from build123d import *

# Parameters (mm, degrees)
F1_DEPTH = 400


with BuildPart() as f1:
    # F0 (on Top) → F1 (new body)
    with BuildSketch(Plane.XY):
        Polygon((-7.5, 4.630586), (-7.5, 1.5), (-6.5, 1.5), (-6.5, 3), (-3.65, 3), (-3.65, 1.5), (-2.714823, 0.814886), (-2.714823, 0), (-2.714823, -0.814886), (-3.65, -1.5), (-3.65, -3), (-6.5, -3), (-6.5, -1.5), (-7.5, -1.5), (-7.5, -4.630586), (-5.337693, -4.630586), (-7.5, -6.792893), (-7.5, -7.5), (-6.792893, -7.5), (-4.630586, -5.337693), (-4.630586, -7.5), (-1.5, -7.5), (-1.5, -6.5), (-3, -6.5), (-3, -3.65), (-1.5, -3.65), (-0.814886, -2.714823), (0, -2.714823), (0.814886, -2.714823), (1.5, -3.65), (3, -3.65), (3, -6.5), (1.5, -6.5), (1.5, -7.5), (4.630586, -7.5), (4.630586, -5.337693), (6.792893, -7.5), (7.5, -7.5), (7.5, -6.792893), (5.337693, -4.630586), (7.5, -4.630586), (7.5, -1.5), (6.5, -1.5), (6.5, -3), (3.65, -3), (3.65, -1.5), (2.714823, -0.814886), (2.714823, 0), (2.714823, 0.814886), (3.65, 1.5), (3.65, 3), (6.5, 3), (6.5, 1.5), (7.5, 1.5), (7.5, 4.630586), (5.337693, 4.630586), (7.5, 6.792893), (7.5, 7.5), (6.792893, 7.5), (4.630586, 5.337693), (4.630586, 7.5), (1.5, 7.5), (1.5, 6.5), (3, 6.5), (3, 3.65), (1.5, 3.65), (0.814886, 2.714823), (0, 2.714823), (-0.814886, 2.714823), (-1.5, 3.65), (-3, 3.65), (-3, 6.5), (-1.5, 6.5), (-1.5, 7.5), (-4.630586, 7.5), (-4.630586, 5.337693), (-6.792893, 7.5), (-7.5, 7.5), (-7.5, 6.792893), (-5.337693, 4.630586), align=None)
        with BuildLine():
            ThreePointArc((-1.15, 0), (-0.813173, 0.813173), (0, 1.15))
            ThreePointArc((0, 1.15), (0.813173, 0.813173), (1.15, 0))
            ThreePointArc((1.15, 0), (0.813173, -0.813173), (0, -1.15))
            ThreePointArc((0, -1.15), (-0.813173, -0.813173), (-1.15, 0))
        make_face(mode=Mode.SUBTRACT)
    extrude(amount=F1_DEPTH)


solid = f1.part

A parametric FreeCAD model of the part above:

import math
import FreeCAD as App
import Part
import Sketcher

V = App.Vector
Q = App.Units.Quantity

doc = App.newDocument("Part")
body = doc.addObject("PartDesign::Body", "Body")

sketch1 = body.newObject("Sketcher::SketchObject", "Sketch")
sketch1.AttachmentSupport = (doc.getObject("XY_Plane"), [""])
sketch1.MapMode = "FlatFace"
sketch1.addGeometry([
    Part.LineSegment(V(-7.5, 4.6, 0), V(-7.5, 1.5, 0)),
    Part.LineSegment(V(-7.5, 1.5, 0), V(-6.5, 1.5, 0)),
    Part.LineSegment(V(-6.5, 1.5, 0), V(-6.5, 3, 0)),
    Part.LineSegment(V(-6.5, 3, 0), V(-3.6, 3, 0)),
    Part.LineSegment(V(-3.6, 3, 0), V(-3.6, 1.5, 0)),
    Part.LineSegment(V(-3.6, 1.5, 0), V(-2.7, 0.8, 0)),
    Part.LineSegment(V(-2.7, 0.8, 0), V(-2.7, -0.8, 0)),
    Part.LineSegment(V(-2.7, -0.8, 0), V(-3.6, -1.5, 0)),
    Part.LineSegment(V(-3.6, -1.5, 0), V(-3.6, -3, 0)),
    Part.LineSegment(V(-3.6, -3, 0), V(-6.5, -3, 0)),
    Part.LineSegment(V(-6.5, -3, 0), V(-6.5, -1.5, 0)),
    Part.LineSegment(V(-6.5, -1.5, 0), V(-7.5, -1.5, 0)),
    Part.LineSegment(V(-7.5, -1.5, 0), V(-7.5, -4.6, 0)),
    Part.LineSegment(V(-7.5, -4.6, 0), V(-5.3, -4.6, 0)),
    Part.LineSegment(V(-5.3, -4.6, 0), V(-7.5, -6.8, 0)),
    Part.LineSegment(V(-7.5, -6.8, 0), V(-7.5, -7.5, 0)),
    Part.LineSegment(V(-7.5, -7.5, 0), V(-6.8, -7.5, 0)),
    Part.LineSegment(V(-6.8, -7.5, 0), V(-4.6, -5.3, 0)),
    Part.LineSegment(V(-4.6, -5.3, 0), V(-4.6, -7.5, 0)),
    Part.LineSegment(V(-4.6, -7.5, 0), V(-1.5, -7.5, 0)),
    Part.LineSegment(V(-1.5, -7.5, 0), V(-1.5, -6.5, 0)),
    Part.LineSegment(V(-1.5, -6.5, 0), V(-3, -6.5, 0)),
    Part.LineSegment(V(-3, -6.5, 0), V(-3, -3.6, 0)),
    Part.LineSegment(V(-3, -3.6, 0), V(-1.5, -3.6, 0)),
    Part.LineSegment(V(-1.5, -3.6, 0), V(-0.8, -2.7, 0)),
    Part.LineSegment(V(-0.8, -2.7, 0), V(0.8, -2.7, 0)),
    Part.LineSegment(V(0.8, -2.7, 0), V(1.5, -3.6, 0)),
    Part.LineSegment(V(1.5, -3.6, 0), V(3, -3.6, 0)),
    Part.LineSegment(V(3, -3.6, 0), V(3, -6.5, 0)),
    Part.LineSegment(V(3, -6.5, 0), V(1.5, -6.5, 0)),
    Part.LineSegment(V(1.5, -6.5, 0), V(1.5, -7.5, 0)),
    Part.LineSegment(V(1.5, -7.5, 0), V(4.6, -7.5, 0)),
    Part.LineSegment(V(4.6, -7.5, 0), V(4.6, -5.3, 0)),
    Part.LineSegment(V(4.6, -5.3, 0), V(6.8, -7.5, 0)),
    Part.LineSegment(V(6.8, -7.5, 0), V(7.5, -7.5, 0)),
    Part.LineSegment(V(7.5, -7.5, 0), V(7.5, -6.8, 0)),
    Part.LineSegment(V(7.5, -6.8, 0), V(5.3, -4.6, 0)),
    Part.LineSegment(V(5.3, -4.6, 0), V(7.5, -4.6, 0)),
    Part.LineSegment(V(7.5, -4.6, 0), V(7.5, -1.5, 0)),
    Part.LineSegment(V(7.5, -1.5, 0), V(6.5, -1.5, 0)),
    Part.LineSegment(V(6.5, -1.5, 0), V(6.5, -3, 0)),
    Part.LineSegment(V(6.5, -3, 0), V(3.6, -3, 0)),
    Part.LineSegment(V(3.6, -3, 0), V(3.6, -1.5, 0)),
    Part.LineSegment(V(3.6, -1.5, 0), V(2.7, -0.8, 0)),
    Part.LineSegment(V(2.7, -0.8, 0), V(2.7, 0.8, 0)),
    Part.LineSegment(V(2.7, 0.8, 0), V(3.6, 1.5, 0)),
    Part.LineSegment(V(3.6, 1.5, 0), V(3.6, 3, 0)),
    Part.LineSegment(V(3.6, 3, 0), V(6.5, 3, 0)),
    Part.LineSegment(V(6.5, 3, 0), V(6.5, 1.5, 0)),
    Part.LineSegment(V(6.5, 1.5, 0), V(7.5, 1.5, 0)),
    Part.LineSegment(V(7.5, 1.5, 0), V(7.5, 4.6, 0)),
    Part.LineSegment(V(7.5, 4.6, 0), V(5.3, 4.6, 0)),
    Part.LineSegment(V(5.3, 4.6, 0), V(7.5, 6.8, 0)),
    Part.LineSegment(V(7.5, 6.8, 0), V(7.5, 7.5, 0)),
    Part.LineSegment(V(7.5, 7.5, 0), V(6.8, 7.5, 0)),
    Part.LineSegment(V(6.8, 7.5, 0), V(4.6, 5.3, 0)),
    Part.LineSegment(V(4.6, 5.3, 0), V(4.6, 7.5, 0)),
    Part.LineSegment(V(4.6, 7.5, 0), V(1.5, 7.5, 0)),
    Part.LineSegment(V(1.5, 7.5, 0), V(1.5, 6.5, 0)),
    Part.LineSegment(V(1.5, 6.5, 0), V(3, 6.5, 0)),
    Part.LineSegment(V(3, 6.5, 0), V(3, 3.6, 0)),
    Part.LineSegment(V(3, 3.6, 0), V(1.5, 3.6, 0)),
    Part.LineSegment(V(1.5, 3.6, 0), V(0.8, 2.7, 0)),
    Part.LineSegment(V(0.8, 2.7, 0), V(-0.8, 2.7, 0)),
    Part.LineSegment(V(-0.8, 2.7, 0), V(-1.5, 3.6, 0)),
    Part.LineSegment(V(-1.5, 3.6, 0), V(-3, 3.6, 0)),
    Part.LineSegment(V(-3, 3.6, 0), V(-3, 6.5, 0)),
    Part.LineSegment(V(-3, 6.5, 0), V(-1.5, 6.5, 0)),
    Part.LineSegment(V(-1.5, 6.5, 0), V(-1.5, 7.5, 0)),
    Part.LineSegment(V(-1.5, 7.5, 0), V(-4.6, 7.5, 0)),
    Part.LineSegment(V(-4.6, 7.5, 0), V(-4.6, 5.3, 0)),
    Part.LineSegment(V(-4.6, 5.3, 0), V(-6.8, 7.5, 0)),
    Part.LineSegment(V(-6.8, 7.5, 0), V(-7.5, 7.5, 0)),
    Part.LineSegment(V(-7.5, 7.5, 0), V(-7.5, 6.8, 0)),
    Part.LineSegment(V(-7.5, 6.8, 0), V(-5.3, 4.6, 0)),
    Part.LineSegment(V(-5.3, 4.6, 0), V(-7.5, 4.6, 0)),
    Part.ArcOfCircle(Part.Circle(V(0, 0, 0), V(0, 0, 1), 1.1), math.radians(180), math.radians(270)),
    Part.ArcOfCircle(Part.Circle(V(0, 0, 0), V(0, 0, 1), 1.1), math.radians(90), math.radians(180)),
    Part.ArcOfCircle(Part.Circle(V(0, 0, 0), V(0, 0, 1), 1.1), math.radians(0), math.radians(90)),
    Part.ArcOfCircle(Part.Circle(V(0, 0, 0), V(0, 0, 1), 1.1), math.radians(-90), math.radians(0)),
], False)
sketch1.addConstraint([
    Sketcher.Constraint("Coincident", 0, 2, 1, 1),
    Sketcher.Constraint("Coincident", 1, 2, 2, 1),
    Sketcher.Constraint("Coincident", 2, 2, 3, 1),
    Sketcher.Constraint("Coincident", 3, 2, 4, 1),
    Sketcher.Constraint("Coincident", 4, 2, 5, 1),
    Sketcher.Constraint("Coincident", 5, 2, 6, 1),
    Sketcher.Constraint("Coincident", 6, 2, 7, 1),
    Sketcher.Constraint("Coincident", 7, 2, 8, 1),
    Sketcher.Constraint("Coincident", 8, 2, 9, 1),
    Sketcher.Constraint("Coincident", 9, 2, 10, 1),
    Sketcher.Constraint("Coincident", 10, 2, 11, 1),
    Sketcher.Constraint("Coincident", 11, 2, 12, 1),
    Sketcher.Constraint("Coincident", 12, 2, 13, 1),
    Sketcher.Constraint("Coincident", 13, 2, 14, 1),
    Sketcher.Constraint("Coincident", 14, 2, 15, 1),
    Sketcher.Constraint("Coincident", 15, 2, 16, 1),
    Sketcher.Constraint("Coincident", 16, 2, 17, 1),
    Sketcher.Constraint("Coincident", 17, 2, 18, 1),
    Sketcher.Constraint("Coincident", 18, 2, 19, 1),
    Sketcher.Constraint("Coincident", 19, 2, 20, 1),
    Sketcher.Constraint("Coincident", 20, 2, 21, 1),
    Sketcher.Constraint("Coincident", 21, 2, 22, 1),
    Sketcher.Constraint("Coincident", 22, 2, 23, 1),
    Sketcher.Constraint("Coincident", 23, 2, 24, 1),
    Sketcher.Constraint("Coincident", 24, 2, 25, 1),
    Sketcher.Constraint("Coincident", 25, 2, 26, 1),
    Sketcher.Constraint("Coincident", 26, 2, 27, 1),
    Sketcher.Constraint("Coincident", 27, 2, 28, 1),
    Sketcher.Constraint("Coincident", 28, 2, 29, 1),
    Sketcher.Constraint("Coincident", 29, 2, 30, 1),
    Sketcher.Constraint("Coincident", 30, 2, 31, 1),
    Sketcher.Constraint("Coincident", 31, 2, 32, 1),
    Sketcher.Constraint("Coincident", 32, 2, 33, 1),
    Sketcher.Constraint("Coincident", 33, 2, 34, 1),
    Sketcher.Constraint("Coincident", 34, 2, 35, 1),
    Sketcher.Constraint("Coincident", 35, 2, 36, 1),
    Sketcher.Constraint("Coincident", 36, 2, 37, 1),
    Sketcher.Constraint("Coincident", 37, 2, 38, 1),
    Sketcher.Constraint("Coincident", 38, 2, 39, 1),
    Sketcher.Constraint("Coincident", 39, 2, 40, 1),
    Sketcher.Constraint("Coincident", 40, 2, 41, 1),
    Sketcher.Constraint("Coincident", 41, 2, 42, 1),
    Sketcher.Constraint("Coincident", 42, 2, 43, 1),
    Sketcher.Constraint("Coincident", 43, 2, 44, 1),
    Sketcher.Constraint("Coincident", 44, 2, 45, 1),
    Sketcher.Constraint("Coincident", 45, 2, 46, 1),
    Sketcher.Constraint("Coincident", 46, 2, 47, 1),
    Sketcher.Constraint("Coincident", 47, 2, 48, 1),
    Sketcher.Constraint("Coincident", 48, 2, 49, 1),
    Sketcher.Constraint("Coincident", 49, 2, 50, 1),
    Sketcher.Constraint("Coincident", 50, 2, 51, 1),
    Sketcher.Constraint("Coincident", 51, 2, 52, 1),
    Sketcher.Constraint("Coincident", 52, 2, 53, 1),
    Sketcher.Constraint("Coincident", 53, 2, 54, 1),
    Sketcher.Constraint("Coincident", 54, 2, 55, 1),
    Sketcher.Constraint("Coincident", 55, 2, 56, 1),
    Sketcher.Constraint("Coincident", 56, 2, 57, 1),
    Sketcher.Constraint("Coincident", 57, 2, 58, 1),
    Sketcher.Constraint("Coincident", 58, 2, 59, 1),
    Sketcher.Constraint("Coincident", 59, 2, 60, 1),
    Sketcher.Constraint("Coincident", 60, 2, 61, 1),
    Sketcher.Constraint("Coincident", 61, 2, 62, 1),
    Sketcher.Constraint("Coincident", 62, 2, 63, 1),
    Sketcher.Constraint("Coincident", 63, 2, 64, 1),
    Sketcher.Constraint("Coincident", 64, 2, 65, 1),
    Sketcher.Constraint("Coincident", 65, 2, 66, 1),
    Sketcher.Constraint("Coincident", 66, 2, 67, 1),
    Sketcher.Constraint("Coincident", 67, 2, 68, 1),
    Sketcher.Constraint("Coincident", 68, 2, 69, 1),
    Sketcher.Constraint("Coincident", 69, 2, 70, 1),
    Sketcher.Constraint("Coincident", 70, 2, 71, 1),
    Sketcher.Constraint("Coincident", 71, 2, 72, 1),
    Sketcher.Constraint("Coincident", 72, 2, 73, 1),
    Sketcher.Constraint("Coincident", 73, 2, 74, 1),
    Sketcher.Constraint("Coincident", 74, 2, 75, 1),
    Sketcher.Constraint("Coincident", 75, 2, 0, 1),
    Sketcher.Constraint("Tangent", 76, 1, 77, 2),
    Sketcher.Constraint("Tangent", 77, 1, 78, 2),
    Sketcher.Constraint("Tangent", 78, 1, 79, 2),
    Sketcher.Constraint("Tangent", 79, 1, 76, 2),
    Sketcher.Constraint("Vertical", 0),
    Sketcher.Constraint("Horizontal", 1),
    Sketcher.Constraint("Vertical", 2),
    Sketcher.Constraint("Horizontal", 3),
    Sketcher.Constraint("Vertical", 4),
    Sketcher.Constraint("Vertical", 6),
    Sketcher.Constraint("Vertical", 8),
    Sketcher.Constraint("Horizontal", 9),
    Sketcher.Constraint("Vertical", 10),
    Sketcher.Constraint("Horizontal", 11),
    Sketcher.Constraint("Vertical", 12),
    Sketcher.Constraint("Horizontal", 13),
    Sketcher.Constraint("Vertical", 15),
    Sketcher.Constraint("Horizontal", 16),
    Sketcher.Constraint("Vertical", 18),
    Sketcher.Constraint("Horizontal", 19),
    Sketcher.Constraint("Vertical", 20),
    Sketcher.Constraint("Horizontal", 21),
    Sketcher.Constraint("Vertical", 22),
    Sketcher.Constraint("Horizontal", 23),
    Sketcher.Constraint("Horizontal", 25),
    Sketcher.Constraint("Horizontal", 27),
    Sketcher.Constraint("Vertical", 28),
    Sketcher.Constraint("Horizontal", 29),
    Sketcher.Constraint("Vertical", 30),
    Sketcher.Constraint("Horizontal", 31),
    Sketcher.Constraint("Vertical", 32),
    Sketcher.Constraint("Horizontal", 34),
    Sketcher.Constraint("Vertical", 35),
    Sketcher.Constraint("Horizontal", 37),
    Sketcher.Constraint("Vertical", 38),
    Sketcher.Constraint("Horizontal", 39),
    Sketcher.Constraint("Vertical", 40),
    Sketcher.Constraint("Horizontal", 41),
    Sketcher.Constraint("Vertical", 42),
    Sketcher.Constraint("Vertical", 44),
    Sketcher.Constraint("Vertical", 46),
    Sketcher.Constraint("Horizontal", 47),
    Sketcher.Constraint("Vertical", 48),
    Sketcher.Constraint("Horizontal", 49),
    Sketcher.Constraint("Vertical", 50),
    Sketcher.Constraint("Horizontal", 51),
    Sketcher.Constraint("Vertical", 53),
    Sketcher.Constraint("Horizontal", 54),
    Sketcher.Constraint("Vertical", 56),
    Sketcher.Constraint("Horizontal", 57),
    Sketcher.Constraint("Vertical", 58),
    Sketcher.Constraint("Horizontal", 59),
    Sketcher.Constraint("Vertical", 60),
    Sketcher.Constraint("Horizontal", 61),
    Sketcher.Constraint("Horizontal", 63),
    Sketcher.Constraint("Horizontal", 65),
    Sketcher.Constraint("Vertical", 66),
    Sketcher.Constraint("Horizontal", 67),
    Sketcher.Constraint("Vertical", 68),
    Sketcher.Constraint("Horizontal", 69),
    Sketcher.Constraint("Vertical", 70),
    Sketcher.Constraint("Horizontal", 72),
    Sketcher.Constraint("Vertical", 73),
    Sketcher.Constraint("Horizontal", 75),
    Sketcher.Constraint("Coincident", 76, 3, -1, 1),
    Sketcher.Constraint("Equal", 76, 77),
    Sketcher.Constraint("Symmetric", 0, 2, 38, 2, -1, 1),
    Sketcher.Constraint("Symmetric", 2, 2, 40, 2, -1, 1),
    Sketcher.Constraint("Symmetric", 4, 2, 42, 2, -1, 1),
    Sketcher.Constraint("Symmetric", 5, 2, 43, 2, -1, 1),
    Sketcher.Constraint("Symmetric", 7, 2, 45, 2, -1, 1),
    Sketcher.Constraint("Symmetric", 9, 2, 47, 2, -1, 1),
    Sketcher.Constraint("Symmetric", 11, 2, 49, 2, -1, 1),
    Sketcher.Constraint("Symmetric", 13, 2, 51, 2, -1, 1),
    Sketcher.Constraint("Symmetric", 14, 2, 52, 2, -1, 1),
    Sketcher.Constraint("Symmetric", 16, 2, 54, 2, -1, 1),
    Sketcher.Constraint("Symmetric", 17, 2, 55, 2, -1, 1),
    Sketcher.Constraint("Symmetric", 19, 2, 57, 2, -1, 1),
    Sketcher.Constraint("Symmetric", 21, 2, 59, 2, -1, 1),
    Sketcher.Constraint("Symmetric", 23, 2, 61, 2, -1, 1),
    Sketcher.Constraint("Symmetric", 24, 2, 62, 2, -1, 1),
    Sketcher.Constraint("Symmetric", 26, 2, 64, 2, -1, 1),
    Sketcher.Constraint("Symmetric", 28, 2, 66, 2, -1, 1),
    Sketcher.Constraint("Symmetric", 30, 2, 68, 2, -1, 1),
    Sketcher.Constraint("Symmetric", 32, 2, 70, 2, -1, 1),
    Sketcher.Constraint("Symmetric", 33, 2, 71, 2, -1, 1),
    Sketcher.Constraint("Symmetric", 35, 2, 73, 2, -1, 1),
    Sketcher.Constraint("Symmetric", 36, 2, 74, 2, -1, 1),
    Sketcher.Constraint("Symmetric", 23, 2, 26, 2, -2),
    Sketcher.Constraint("Symmetric", 21, 2, 28, 2, -2),
    Sketcher.Constraint("Symmetric", 19, 2, 30, 2, -2),
    Sketcher.Constraint("Symmetric", 17, 2, 32, 2, -2),
    Sketcher.Constraint("Symmetric", 16, 2, 33, 2, -2),
    Sketcher.Constraint("Symmetric", 14, 2, 35, 2, -2),
    Sketcher.Constraint("Symmetric", 13, 2, 36, 2, -2),
    Sketcher.Constraint("Symmetric", 11, 2, 38, 2, -2),
    Sketcher.Constraint("Symmetric", 9, 2, 40, 2, -2),
    Sketcher.Constraint("Symmetric", 7, 2, 42, 2, -2),
    Sketcher.Constraint("PointOnObject", 76, 1, -1),
    Sketcher.Constraint("PointOnObject", 77, 1, -2),
    Sketcher.Constraint("PointOnObject", 78, 1, -1),
    Sketcher.Constraint("PointOnObject", 79, 1, -2),
    Sketcher.Constraint("Parallel", 14, 17),
    Sketcher.Constraint("Perpendicular", 5, 24),
    Sketcher.Constraint("Perpendicular", 7, 26),
    Sketcher.Constraint("Perpendicular", 17, 33),
    Sketcher.Constraint("Perpendicular", 26, 45),
    Sketcher.Constraint("Perpendicular", 45, 64),
    Sketcher.Constraint("Horizontal", 1, 2, 4, 2),
    Sketcher.Constraint("Horizontal", 16, 2, 18, 2),
    Sketcher.Constraint("Horizontal", 6, 2, 43, 2),
    Sketcher.Constraint("Vertical", 12, 2, 14, 2),
    Sketcher.Constraint("Vertical", 20, 2, 23, 2),
    Sketcher.Constraint("Equal", 69, 0),
    Sketcher.Constraint("Equal", 67, 2),
    Sketcher.Constraint("Equal", 63, 6),
    Sketcher.Constraint("Equal", 72, 15),
    Sketcher.Constraint("Equal", 75, 18),
    Sketcher.Constraint("Equal", 49, 20),
    Sketcher.Constraint("Equal", 47, 22),
    Sketcher.Constraint("Equal", 7, 24),
    Sketcher.Constraint("DistanceX", 1, 1, 1, 2, Q("1 mm")),
    Sketcher.Constraint("Radius", 76, Q("1.149999 mm")),
    Sketcher.Constraint("DistanceX", 21, 2, 21, 1, Q("1.5 mm")),
    Sketcher.Constraint("DistanceY", -1, 1, 2, 2, Q("3 mm")),
    Sketcher.Constraint("DistanceX", 3, 1, 3, 2, Q("2.85 mm")),
    Sketcher.Constraint("DistanceX", 0, 2, -1, 1, Q("7.5 mm")),
    Sketcher.Constraint("DistanceX", 13, 1, 13, 2, Q("2.162307 mm")),
    Sketcher.Constraint("DistanceX", 16, 1, 16, 2, Q("0.707107 mm")),
    Sketcher.Constraint("DistanceX", 25, 1, 25, 2, Q("1.629772 mm")),
    Sketcher.Constraint("Distance", 5, Q("1.159283 mm")),
])
pad1 = body.newObject("PartDesign::Pad", "Pad")
pad1.Profile = sketch1
pad1.Length = 400

doc.recompute()
